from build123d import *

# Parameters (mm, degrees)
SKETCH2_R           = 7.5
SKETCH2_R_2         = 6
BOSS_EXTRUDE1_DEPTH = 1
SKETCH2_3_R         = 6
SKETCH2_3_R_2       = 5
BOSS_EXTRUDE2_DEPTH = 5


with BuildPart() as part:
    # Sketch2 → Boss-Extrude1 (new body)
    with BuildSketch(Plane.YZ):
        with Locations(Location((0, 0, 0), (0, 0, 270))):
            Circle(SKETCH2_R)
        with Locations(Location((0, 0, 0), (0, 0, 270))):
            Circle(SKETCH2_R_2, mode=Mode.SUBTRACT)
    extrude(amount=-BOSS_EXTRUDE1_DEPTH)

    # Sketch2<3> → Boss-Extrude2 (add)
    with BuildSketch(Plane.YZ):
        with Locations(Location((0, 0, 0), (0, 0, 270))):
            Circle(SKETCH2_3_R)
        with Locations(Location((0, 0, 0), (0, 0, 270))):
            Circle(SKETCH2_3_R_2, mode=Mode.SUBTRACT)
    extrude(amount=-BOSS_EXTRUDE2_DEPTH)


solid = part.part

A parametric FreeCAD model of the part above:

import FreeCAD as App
import Part
import Sketcher
from FreeCAD import Vector
Q = App.Units.Quantity

doc = App.newDocument("Part")
body = doc.addObject("PartDesign::Body", "Body")

# Sketch on YZ plane
sketch1 = doc.addObject("Sketcher::SketchObject", "Sketch")
body.addObject(sketch1)
sketch1.AttachmentSupport = (doc.YZ_Plane, [""])
sketch1.MapMode = "FlatFace"
sketch1.addGeometry([
    Part.Circle(Vector(0, 0, 0), Vector(0, 0, 1), 8),
    Part.Circle(Vector(0, 0, 0), Vector(0, 0, 1), 6),
], False)
sketch1.addConstraint([
    Sketcher.Constraint("Coincident", 0, 3, -1, 1),
    Sketcher.Constraint("Coincident", 1, 3, -1, 1),
    Sketcher.Constraint("Diameter", 0, Q("15 mm")),
    Sketcher.Constraint("Diameter", 1, Q("12 mm")),
])
pad1 = doc.addObject("PartDesign::Pad", "Pad")
body.addObject(pad1)
pad1.Profile = sketch1
pad1.Length = 1
pad1.Reversed = True

# Sketch on YZ plane
sketch2 = doc.addObject("Sketcher::SketchObject", "Sketch001")
body.addObject(sketch2)
sketch2.AttachmentSupport = (doc.YZ_Plane, [""])
sketch2.MapMode = "FlatFace"
sketch2.addGeometry([
    Part.Circle(Vector(0, 0, 0), Vector(0, 0, 1), 6),
    Part.Circle(Vector(0, 0, 0), Vector(0, 0, 1), 5),
], False)
sketch2.addConstraint([
    Sketcher.Constraint("Coincident", 0, 3, -1, 1),
    Sketcher.Constraint("Coincident", 1, 3, -1, 1),
    Sketcher.Constraint("Diameter", 0, Q("12 mm")),
    Sketcher.Constraint("Diameter", 1, Q("10 mm")),
])
pad2 = doc.addObject("PartDesign::Pad", "Pad001")
body.addObject(pad2)
pad2.Profile = sketch2
pad2.Length = 5
pad2.Reversed = True

doc.recompute()
